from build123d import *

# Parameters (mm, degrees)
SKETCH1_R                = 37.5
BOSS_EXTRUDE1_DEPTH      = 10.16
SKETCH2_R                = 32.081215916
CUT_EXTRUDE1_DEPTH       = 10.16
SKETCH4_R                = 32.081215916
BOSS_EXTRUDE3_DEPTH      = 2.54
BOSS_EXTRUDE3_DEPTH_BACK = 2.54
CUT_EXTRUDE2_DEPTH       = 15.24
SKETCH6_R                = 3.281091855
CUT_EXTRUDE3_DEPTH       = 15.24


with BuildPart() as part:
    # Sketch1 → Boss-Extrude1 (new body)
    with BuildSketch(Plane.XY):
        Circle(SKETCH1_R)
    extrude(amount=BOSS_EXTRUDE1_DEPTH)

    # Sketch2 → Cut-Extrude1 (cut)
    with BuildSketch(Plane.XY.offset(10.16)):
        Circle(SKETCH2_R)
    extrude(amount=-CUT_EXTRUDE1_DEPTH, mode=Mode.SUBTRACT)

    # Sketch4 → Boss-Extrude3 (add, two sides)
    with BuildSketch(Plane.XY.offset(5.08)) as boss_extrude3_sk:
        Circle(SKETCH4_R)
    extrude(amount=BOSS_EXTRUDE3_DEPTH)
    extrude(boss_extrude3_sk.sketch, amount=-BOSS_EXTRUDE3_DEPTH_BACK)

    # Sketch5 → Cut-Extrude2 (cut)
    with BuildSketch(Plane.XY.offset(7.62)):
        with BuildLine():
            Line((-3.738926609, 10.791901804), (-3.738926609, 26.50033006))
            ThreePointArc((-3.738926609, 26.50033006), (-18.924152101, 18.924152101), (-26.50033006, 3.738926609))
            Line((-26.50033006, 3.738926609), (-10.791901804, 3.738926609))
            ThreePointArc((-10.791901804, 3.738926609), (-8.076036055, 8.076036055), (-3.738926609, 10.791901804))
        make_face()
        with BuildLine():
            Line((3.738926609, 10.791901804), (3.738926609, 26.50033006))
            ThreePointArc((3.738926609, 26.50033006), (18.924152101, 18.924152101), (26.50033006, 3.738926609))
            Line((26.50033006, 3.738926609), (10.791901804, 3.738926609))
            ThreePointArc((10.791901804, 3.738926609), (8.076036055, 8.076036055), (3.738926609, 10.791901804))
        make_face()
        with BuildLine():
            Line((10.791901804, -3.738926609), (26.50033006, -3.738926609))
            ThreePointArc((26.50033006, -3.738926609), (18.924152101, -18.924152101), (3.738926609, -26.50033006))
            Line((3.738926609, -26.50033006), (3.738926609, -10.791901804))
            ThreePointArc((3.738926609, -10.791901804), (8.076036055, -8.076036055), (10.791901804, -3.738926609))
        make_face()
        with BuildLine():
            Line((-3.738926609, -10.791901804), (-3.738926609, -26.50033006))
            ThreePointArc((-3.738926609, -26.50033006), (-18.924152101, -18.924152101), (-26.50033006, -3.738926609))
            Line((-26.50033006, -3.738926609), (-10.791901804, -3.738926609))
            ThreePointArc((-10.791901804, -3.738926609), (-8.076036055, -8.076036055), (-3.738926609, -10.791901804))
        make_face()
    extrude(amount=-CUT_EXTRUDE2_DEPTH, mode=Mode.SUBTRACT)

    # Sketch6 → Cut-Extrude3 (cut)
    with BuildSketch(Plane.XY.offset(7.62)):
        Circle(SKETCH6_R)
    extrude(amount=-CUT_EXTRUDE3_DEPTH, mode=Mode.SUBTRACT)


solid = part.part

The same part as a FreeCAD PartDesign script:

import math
import FreeCAD as App
import Part
import Sketcher
Q = App.Units.Quantity

doc = App.newDocument("Part")
body = doc.addObject("PartDesign::Body", "Body")

# Sketch on XY plane
sketch1 = body.newObject("Sketcher::SketchObject", "Sketch")
sketch1.AttachmentSupport = (doc.getObject("XY_Plane"), [""])
sketch1.MapMode = "FlatFace"
sketch1.addGeometry(Part.Circle(App.Vector(0, 0, 0), App.Vector(0, 0, 1), 38), False)
sketch1.addConstraint([
    Sketcher.Constraint("Coincident", 0, 3, -1, 1),
    Sketcher.Constraint("Diameter", 0, Q("75 mm")),
])
pad1 = body.newObject("PartDesign::Pad", "Pad")
pad1.Profile = sketch1
pad1.Length = Q("0.4 in")

# Sketch on XY plane
sketch2 = body.newObject("Sketcher::SketchObject", "Sketch001")
sketch2.AttachmentSupport = (doc.getObject("XY_Plane"), [""])
sketch2.MapMode = "FlatFace"
sketch2.AttachmentOffset = App.Placement(App.Vector(0, 0, 0.4 * 25.4), App.Rotation())
sketch2.addGeometry(Part.Circle(App.Vector(0, 0, 0), App.Vector(0, 0, 1), 32), False)
sketch2.addConstraint([
    Sketcher.Constraint("Coincident", 0, 3, -1, 1),
    Sketcher.Constraint("Diameter", 0, Q("64.162432 mm")),
])
pocket1 = body.newObject("PartDesign::Pocket", "Pocket")
pocket1.Profile = sketch2
pocket1.Length = Q("0.4 in")

# Sketch on XY plane
sketch3 = body.newObject("Sketcher::SketchObject", "Sketch002")
sketch3.AttachmentSupport = (doc.getObject("XY_Plane"), [""])
sketch3.MapMode = "FlatFace"
sketch3.AttachmentOffset = App.Placement(App.Vector(0, 0, 0.2 * 25.4), App.Rotation())
sketch3.addGeometry(Part.Circle(App.Vector(0, 0, 0), App.Vector(0, 0, 1), 32), False)
sketch3.addConstraint([
    Sketcher.Constraint("Coincident", 0, 3, -1, 1),
    Sketcher.Constraint("Diameter", 0, Q("64.162432 mm")),
])
pad2 = body.newObject("PartDesign::Pad", "Pad001")
pad2.Profile = sketch3
pad2.Type = "TwoLengths"
pad2.Length = Q("0.1 in")
pad2.Length2 = Q("0.1 in")

# Sketch on XY plane
sketch4 = body.newObject("Sketcher::SketchObject", "Sketch003")
sketch4.AttachmentSupport = (doc.getObject("XY_Plane"), [""])
sketch4.MapMode = "FlatFace"
sketch4.AttachmentOffset = App.Placement(App.Vector(0, 0, 0.3 * 25.4), App.Rotation())
sketch4.addGeometry([
    Part.LineSegment(App.Vector(-4, 11, 0), App.Vector(-4, 27, 0)),  # 0
    Part.ArcOfCircle(Part.Circle(App.Vector(0, 0, 0), App.Vector(0, 0, 1), 27), math.radians(98), math.radians(172)),  # 1
    Part.LineSegment(App.Vector(-27, 4, 0), App.Vector(-11, 4, 0)),  # 2
    Part.ArcOfCircle(Part.Circle(App.Vector(0, 0, 0), App.Vector(0, 0, 1), 11), math.radians(109), math.radians(161)),  # 3
    Part.LineSegment(App.Vector(4, 27, 0), App.Vector(4, 11, 0)),  # 4
    Part.ArcOfCircle(Part.Circle(App.Vector(0, 0, 0), App.Vector(0, 0, 1), 11), math.radians(19), math.radians(71)),  # 5
    Part.LineSegment(App.Vector(11, 4, 0), App.Vector(27, 4, 0)),  # 6
    Part.ArcOfCircle(Part.Circle(App.Vector(0, 0, 0), App.Vector(0, 0, 1), 27), math.radians(8), math.radians(82)),  # 7
    Part.LineSegment(App.Vector(27, -4, 0), App.Vector(11, -4, 0)),  # 8
    Part.ArcOfCircle(Part.Circle(App.Vector(0, 0, 0), App.Vector(0, 0, 1), 11), math.radians(-71), math.radians(-19)),  # 9
    Part.LineSegment(App.Vector(4, -11, 0), App.Vector(4, -27, 0)),  # 10
    Part.ArcOfCircle(Part.Circle(App.Vector(0, 0, 0), App.Vector(0, 0, 1), 27), math.radians(-82), math.radians(-8)),  # 11
    Part.LineSegment(App.Vector(-4, -27, 0), App.Vector(-4, -11, 0)),  # 12
    Part.ArcOfCircle(Part.Circle(App.Vector(0, 0, 0), App.Vector(0, 0, 1), 11), math.radians(-161), math.radians(-109)),  # 13
    Part.LineSegment(App.Vector(-11, -4, 0), App.Vector(-27, -4, 0)),  # 14
    Part.ArcOfCircle(Part.Circle(App.Vector(0, 0, 0), App.Vector(0, 0, 1), 27), math.radians(-172), math.radians(-98)),  # 15
], False)
sketch4.addConstraint([
    Sketcher.Constraint("Coincident", 0, 2, 1, 1),
    Sketcher.Constraint("Coincident", 1, 2, 2, 1),
    Sketcher.Constraint("Coincident", 2, 2, 3, 2),
    Sketcher.Constraint("Coincident", 3, 1, 0, 1),
    Sketcher.Constraint("Coincident", 4, 2, 5, 2),
    Sketcher.Constraint("Coincident", 5, 1, 6, 1),
    Sketcher.Constraint("Coincident", 6, 2, 7, 1),
    Sketcher.Constraint("Coincident", 7, 2, 4, 1),
    Sketcher.Constraint("Coincident", 8, 2, 9, 2),
    Sketcher.Constraint("Coincident", 9, 1, 10, 1),
    Sketcher.Constraint("Coincident", 10, 2, 11, 1),
    Sketcher.Constraint("Coincident", 11, 2, 8, 1),
    Sketcher.Constraint("Coincident", 12, 2, 13, 2),
    Sketcher.Constraint("Coincident", 13, 1, 14, 1),
    Sketcher.Constraint("Coincident", 14, 2, 15, 1),
    Sketcher.Constraint("Coincident", 15, 2, 12, 1),
    Sketcher.Constraint("Vertical", 0),
    Sketcher.Constraint("Horizontal", 2),
    Sketcher.Constraint("Vertical", 4),
    Sketcher.Constraint("Horizontal", 6),
    Sketcher.Constraint("Horizontal", 8),
    Sketcher.Constraint("Vertical", 10),
    Sketcher.Constraint("Vertical", 12),
    Sketcher.Constraint("Horizontal", 14),
    Sketcher.Constraint("Coincident", 1, 3, -1, 1),
    Sketcher.Constraint("Coincident", 3, 3, -1, 1),
    Sketcher.Constraint("Coincident", 5, 3, -1, 1),
    Sketcher.Constraint("Coincident", 7, 3, -1, 1),
    Sketcher.Constraint("Coincident", 9, 3, -1, 1),
    Sketcher.Constraint("Coincident", 11, 3, -1, 1),
    Sketcher.Constraint("Coincident", 13, 3, -1, 1),
    Sketcher.Constraint("Coincident", 15, 3, -1, 1),
    Sketcher.Constraint("Equal", 3, 5),
    Sketcher.Constraint("Equal", 1, 7),
    Sketcher.Constraint("Equal", 5, 9),
    Sketcher.Constraint("Equal", 7, 11),
    Sketcher.Constraint("Equal", 9, 13),
    Sketcher.Constraint("Equal", 11, 15),
    Sketcher.Constraint("Horizontal", 3, 1, 4, 2),
    Sketcher.Constraint("Horizontal", 2, 2, 5, 1),
    Sketcher.Constraint("Horizontal", 9, 1, 12, 2),
    Sketcher.Constraint("Horizontal", 11, 2, 13, 1),
    Sketcher.Constraint("Vertical", 5, 1, 8, 2),
    Sketcher.Constraint("Vertical", 7, 2, 9, 1),
    Sketcher.Constraint("Equal", 14, 0),
    Sketcher.Constraint("Radius", 3, Q("11.42124 mm")),
    Sketcher.Constraint("Radius", 1, Q("26.762793 mm")),
    Sketcher.Constraint("DistanceX", 2, 1, 2, 2, Q("15.708428 mm")),
])
pocket2 = body.newObject("PartDesign::Pocket", "Pocket001")
pocket2.Profile = sketch4
pocket2.Length = Q("0.6 in")

# Sketch on XY plane
sketch5 = body.newObject("Sketcher::SketchObject", "Sketch004")
sketch5.AttachmentSupport = (doc.getObject("XY_Plane"), [""])
sketch5.MapMode = "FlatFace"
sketch5.AttachmentOffset = App.Placement(App.Vector(0, 0, 0.3 * 25.4), App.Rotation())
sketch5.addGeometry(Part.Circle(App.Vector(0, 0, 0), App.Vector(0, 0, 1), 3.3), False)
sketch5.addConstraint([
    Sketcher.Constraint("Coincident", 0, 3, -1, 1),
    Sketcher.Constraint("Diameter", 0, Q("6.562184 mm")),
])
pocket3 = body.newObject("PartDesign::Pocket", "Pocket002")
pocket3.Profile = sketch5
pocket3.Length = Q("0.6 in")

doc.recompute()
